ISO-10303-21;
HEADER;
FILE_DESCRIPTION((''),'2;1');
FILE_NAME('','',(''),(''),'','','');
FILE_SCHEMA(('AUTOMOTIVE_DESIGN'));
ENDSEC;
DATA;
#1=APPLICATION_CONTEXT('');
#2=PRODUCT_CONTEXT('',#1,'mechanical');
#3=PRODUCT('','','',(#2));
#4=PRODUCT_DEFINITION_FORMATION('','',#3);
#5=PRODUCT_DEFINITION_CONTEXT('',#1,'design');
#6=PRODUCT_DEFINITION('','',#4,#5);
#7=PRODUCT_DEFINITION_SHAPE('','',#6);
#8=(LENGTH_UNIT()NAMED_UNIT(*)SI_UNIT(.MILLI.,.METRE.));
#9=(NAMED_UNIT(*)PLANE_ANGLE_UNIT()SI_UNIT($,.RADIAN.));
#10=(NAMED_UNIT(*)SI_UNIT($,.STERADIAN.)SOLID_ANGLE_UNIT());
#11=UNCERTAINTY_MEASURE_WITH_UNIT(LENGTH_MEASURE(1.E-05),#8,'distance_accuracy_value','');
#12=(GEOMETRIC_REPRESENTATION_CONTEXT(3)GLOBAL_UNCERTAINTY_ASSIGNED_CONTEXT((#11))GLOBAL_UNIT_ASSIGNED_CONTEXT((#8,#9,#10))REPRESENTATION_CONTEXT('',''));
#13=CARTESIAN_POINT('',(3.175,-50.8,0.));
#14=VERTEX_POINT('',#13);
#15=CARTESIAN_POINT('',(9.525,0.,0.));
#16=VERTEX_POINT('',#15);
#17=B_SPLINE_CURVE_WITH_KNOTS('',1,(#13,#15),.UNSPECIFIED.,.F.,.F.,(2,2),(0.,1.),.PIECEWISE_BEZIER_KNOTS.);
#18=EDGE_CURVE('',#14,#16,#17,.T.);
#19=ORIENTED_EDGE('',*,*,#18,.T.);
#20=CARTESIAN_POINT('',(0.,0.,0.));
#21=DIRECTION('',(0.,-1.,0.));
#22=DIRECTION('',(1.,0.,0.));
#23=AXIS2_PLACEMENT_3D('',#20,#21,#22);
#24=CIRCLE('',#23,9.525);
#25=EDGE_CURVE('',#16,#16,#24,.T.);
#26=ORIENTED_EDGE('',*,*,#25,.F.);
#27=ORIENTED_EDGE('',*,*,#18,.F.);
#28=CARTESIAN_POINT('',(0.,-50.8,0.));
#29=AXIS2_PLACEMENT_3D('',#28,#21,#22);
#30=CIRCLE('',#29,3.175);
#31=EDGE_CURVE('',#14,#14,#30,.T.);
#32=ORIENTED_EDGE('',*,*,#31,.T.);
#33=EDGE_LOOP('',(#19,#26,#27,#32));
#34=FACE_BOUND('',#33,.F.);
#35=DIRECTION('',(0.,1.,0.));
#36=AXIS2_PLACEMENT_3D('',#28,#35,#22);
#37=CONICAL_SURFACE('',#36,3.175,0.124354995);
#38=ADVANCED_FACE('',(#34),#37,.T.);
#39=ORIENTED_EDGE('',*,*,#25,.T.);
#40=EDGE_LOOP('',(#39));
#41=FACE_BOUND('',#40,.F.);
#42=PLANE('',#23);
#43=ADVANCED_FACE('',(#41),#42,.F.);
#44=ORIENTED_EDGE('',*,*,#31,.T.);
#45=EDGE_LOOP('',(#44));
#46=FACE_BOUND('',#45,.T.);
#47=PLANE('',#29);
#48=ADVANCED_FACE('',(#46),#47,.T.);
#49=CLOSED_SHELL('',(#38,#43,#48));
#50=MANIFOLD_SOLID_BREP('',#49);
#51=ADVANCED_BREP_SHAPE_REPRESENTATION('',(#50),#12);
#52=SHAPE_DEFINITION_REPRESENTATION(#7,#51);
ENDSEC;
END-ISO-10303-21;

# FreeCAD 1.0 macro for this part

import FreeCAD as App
import Part
import Sketcher
from FreeCAD import Vector
Q = App.Units.Quantity

doc = App.newDocument("Part")
body = doc.addObject("PartDesign::Body", "Body")

sketch1 = body.newObject("Sketcher::SketchObject", "Sketch")
sketch1.AttachmentSupport = (doc.getObject("XZ_Plane"), [""])
sketch1.MapMode = "FlatFace"
sketch1.AttachmentOffset = App.Placement(Vector(0, 0, 2 * 25.4), App.Rotation())
sketch1.addGeometry(Part.Circle(Vector(0, 0, 0), Vector(0, 0, 1), 3.2), False)
sketch1.addConstraint(Sketcher.Constraint("Coincident", 0, 3, -1, 1))
sketch1.addConstraint(Sketcher.Constraint("Diameter", 0, Q("0.25 in")))

sketch2 = body.newObject("Sketcher::SketchObject", "Sketch001")
sketch2.AttachmentSupport = (doc.getObject("XZ_Plane"), [""])
sketch2.MapMode = "FlatFace"
sketch2.addGeometry(Part.Circle(Vector(0, 0, 0), Vector(0, 0, 1), 10), False)
sketch2.addConstraint(Sketcher.Constraint("Coincident", 0, 3, -1, 1))
sketch2.addConstraint(Sketcher.Constraint("Diameter", 0, Q("0.75 in")))

additiveloft = body.newObject("PartDesign::AdditiveLoft", "AdditiveLoft")
additiveloft.Profile = sketch1
additiveloft.Sections = [sketch2]

doc.recompute()
